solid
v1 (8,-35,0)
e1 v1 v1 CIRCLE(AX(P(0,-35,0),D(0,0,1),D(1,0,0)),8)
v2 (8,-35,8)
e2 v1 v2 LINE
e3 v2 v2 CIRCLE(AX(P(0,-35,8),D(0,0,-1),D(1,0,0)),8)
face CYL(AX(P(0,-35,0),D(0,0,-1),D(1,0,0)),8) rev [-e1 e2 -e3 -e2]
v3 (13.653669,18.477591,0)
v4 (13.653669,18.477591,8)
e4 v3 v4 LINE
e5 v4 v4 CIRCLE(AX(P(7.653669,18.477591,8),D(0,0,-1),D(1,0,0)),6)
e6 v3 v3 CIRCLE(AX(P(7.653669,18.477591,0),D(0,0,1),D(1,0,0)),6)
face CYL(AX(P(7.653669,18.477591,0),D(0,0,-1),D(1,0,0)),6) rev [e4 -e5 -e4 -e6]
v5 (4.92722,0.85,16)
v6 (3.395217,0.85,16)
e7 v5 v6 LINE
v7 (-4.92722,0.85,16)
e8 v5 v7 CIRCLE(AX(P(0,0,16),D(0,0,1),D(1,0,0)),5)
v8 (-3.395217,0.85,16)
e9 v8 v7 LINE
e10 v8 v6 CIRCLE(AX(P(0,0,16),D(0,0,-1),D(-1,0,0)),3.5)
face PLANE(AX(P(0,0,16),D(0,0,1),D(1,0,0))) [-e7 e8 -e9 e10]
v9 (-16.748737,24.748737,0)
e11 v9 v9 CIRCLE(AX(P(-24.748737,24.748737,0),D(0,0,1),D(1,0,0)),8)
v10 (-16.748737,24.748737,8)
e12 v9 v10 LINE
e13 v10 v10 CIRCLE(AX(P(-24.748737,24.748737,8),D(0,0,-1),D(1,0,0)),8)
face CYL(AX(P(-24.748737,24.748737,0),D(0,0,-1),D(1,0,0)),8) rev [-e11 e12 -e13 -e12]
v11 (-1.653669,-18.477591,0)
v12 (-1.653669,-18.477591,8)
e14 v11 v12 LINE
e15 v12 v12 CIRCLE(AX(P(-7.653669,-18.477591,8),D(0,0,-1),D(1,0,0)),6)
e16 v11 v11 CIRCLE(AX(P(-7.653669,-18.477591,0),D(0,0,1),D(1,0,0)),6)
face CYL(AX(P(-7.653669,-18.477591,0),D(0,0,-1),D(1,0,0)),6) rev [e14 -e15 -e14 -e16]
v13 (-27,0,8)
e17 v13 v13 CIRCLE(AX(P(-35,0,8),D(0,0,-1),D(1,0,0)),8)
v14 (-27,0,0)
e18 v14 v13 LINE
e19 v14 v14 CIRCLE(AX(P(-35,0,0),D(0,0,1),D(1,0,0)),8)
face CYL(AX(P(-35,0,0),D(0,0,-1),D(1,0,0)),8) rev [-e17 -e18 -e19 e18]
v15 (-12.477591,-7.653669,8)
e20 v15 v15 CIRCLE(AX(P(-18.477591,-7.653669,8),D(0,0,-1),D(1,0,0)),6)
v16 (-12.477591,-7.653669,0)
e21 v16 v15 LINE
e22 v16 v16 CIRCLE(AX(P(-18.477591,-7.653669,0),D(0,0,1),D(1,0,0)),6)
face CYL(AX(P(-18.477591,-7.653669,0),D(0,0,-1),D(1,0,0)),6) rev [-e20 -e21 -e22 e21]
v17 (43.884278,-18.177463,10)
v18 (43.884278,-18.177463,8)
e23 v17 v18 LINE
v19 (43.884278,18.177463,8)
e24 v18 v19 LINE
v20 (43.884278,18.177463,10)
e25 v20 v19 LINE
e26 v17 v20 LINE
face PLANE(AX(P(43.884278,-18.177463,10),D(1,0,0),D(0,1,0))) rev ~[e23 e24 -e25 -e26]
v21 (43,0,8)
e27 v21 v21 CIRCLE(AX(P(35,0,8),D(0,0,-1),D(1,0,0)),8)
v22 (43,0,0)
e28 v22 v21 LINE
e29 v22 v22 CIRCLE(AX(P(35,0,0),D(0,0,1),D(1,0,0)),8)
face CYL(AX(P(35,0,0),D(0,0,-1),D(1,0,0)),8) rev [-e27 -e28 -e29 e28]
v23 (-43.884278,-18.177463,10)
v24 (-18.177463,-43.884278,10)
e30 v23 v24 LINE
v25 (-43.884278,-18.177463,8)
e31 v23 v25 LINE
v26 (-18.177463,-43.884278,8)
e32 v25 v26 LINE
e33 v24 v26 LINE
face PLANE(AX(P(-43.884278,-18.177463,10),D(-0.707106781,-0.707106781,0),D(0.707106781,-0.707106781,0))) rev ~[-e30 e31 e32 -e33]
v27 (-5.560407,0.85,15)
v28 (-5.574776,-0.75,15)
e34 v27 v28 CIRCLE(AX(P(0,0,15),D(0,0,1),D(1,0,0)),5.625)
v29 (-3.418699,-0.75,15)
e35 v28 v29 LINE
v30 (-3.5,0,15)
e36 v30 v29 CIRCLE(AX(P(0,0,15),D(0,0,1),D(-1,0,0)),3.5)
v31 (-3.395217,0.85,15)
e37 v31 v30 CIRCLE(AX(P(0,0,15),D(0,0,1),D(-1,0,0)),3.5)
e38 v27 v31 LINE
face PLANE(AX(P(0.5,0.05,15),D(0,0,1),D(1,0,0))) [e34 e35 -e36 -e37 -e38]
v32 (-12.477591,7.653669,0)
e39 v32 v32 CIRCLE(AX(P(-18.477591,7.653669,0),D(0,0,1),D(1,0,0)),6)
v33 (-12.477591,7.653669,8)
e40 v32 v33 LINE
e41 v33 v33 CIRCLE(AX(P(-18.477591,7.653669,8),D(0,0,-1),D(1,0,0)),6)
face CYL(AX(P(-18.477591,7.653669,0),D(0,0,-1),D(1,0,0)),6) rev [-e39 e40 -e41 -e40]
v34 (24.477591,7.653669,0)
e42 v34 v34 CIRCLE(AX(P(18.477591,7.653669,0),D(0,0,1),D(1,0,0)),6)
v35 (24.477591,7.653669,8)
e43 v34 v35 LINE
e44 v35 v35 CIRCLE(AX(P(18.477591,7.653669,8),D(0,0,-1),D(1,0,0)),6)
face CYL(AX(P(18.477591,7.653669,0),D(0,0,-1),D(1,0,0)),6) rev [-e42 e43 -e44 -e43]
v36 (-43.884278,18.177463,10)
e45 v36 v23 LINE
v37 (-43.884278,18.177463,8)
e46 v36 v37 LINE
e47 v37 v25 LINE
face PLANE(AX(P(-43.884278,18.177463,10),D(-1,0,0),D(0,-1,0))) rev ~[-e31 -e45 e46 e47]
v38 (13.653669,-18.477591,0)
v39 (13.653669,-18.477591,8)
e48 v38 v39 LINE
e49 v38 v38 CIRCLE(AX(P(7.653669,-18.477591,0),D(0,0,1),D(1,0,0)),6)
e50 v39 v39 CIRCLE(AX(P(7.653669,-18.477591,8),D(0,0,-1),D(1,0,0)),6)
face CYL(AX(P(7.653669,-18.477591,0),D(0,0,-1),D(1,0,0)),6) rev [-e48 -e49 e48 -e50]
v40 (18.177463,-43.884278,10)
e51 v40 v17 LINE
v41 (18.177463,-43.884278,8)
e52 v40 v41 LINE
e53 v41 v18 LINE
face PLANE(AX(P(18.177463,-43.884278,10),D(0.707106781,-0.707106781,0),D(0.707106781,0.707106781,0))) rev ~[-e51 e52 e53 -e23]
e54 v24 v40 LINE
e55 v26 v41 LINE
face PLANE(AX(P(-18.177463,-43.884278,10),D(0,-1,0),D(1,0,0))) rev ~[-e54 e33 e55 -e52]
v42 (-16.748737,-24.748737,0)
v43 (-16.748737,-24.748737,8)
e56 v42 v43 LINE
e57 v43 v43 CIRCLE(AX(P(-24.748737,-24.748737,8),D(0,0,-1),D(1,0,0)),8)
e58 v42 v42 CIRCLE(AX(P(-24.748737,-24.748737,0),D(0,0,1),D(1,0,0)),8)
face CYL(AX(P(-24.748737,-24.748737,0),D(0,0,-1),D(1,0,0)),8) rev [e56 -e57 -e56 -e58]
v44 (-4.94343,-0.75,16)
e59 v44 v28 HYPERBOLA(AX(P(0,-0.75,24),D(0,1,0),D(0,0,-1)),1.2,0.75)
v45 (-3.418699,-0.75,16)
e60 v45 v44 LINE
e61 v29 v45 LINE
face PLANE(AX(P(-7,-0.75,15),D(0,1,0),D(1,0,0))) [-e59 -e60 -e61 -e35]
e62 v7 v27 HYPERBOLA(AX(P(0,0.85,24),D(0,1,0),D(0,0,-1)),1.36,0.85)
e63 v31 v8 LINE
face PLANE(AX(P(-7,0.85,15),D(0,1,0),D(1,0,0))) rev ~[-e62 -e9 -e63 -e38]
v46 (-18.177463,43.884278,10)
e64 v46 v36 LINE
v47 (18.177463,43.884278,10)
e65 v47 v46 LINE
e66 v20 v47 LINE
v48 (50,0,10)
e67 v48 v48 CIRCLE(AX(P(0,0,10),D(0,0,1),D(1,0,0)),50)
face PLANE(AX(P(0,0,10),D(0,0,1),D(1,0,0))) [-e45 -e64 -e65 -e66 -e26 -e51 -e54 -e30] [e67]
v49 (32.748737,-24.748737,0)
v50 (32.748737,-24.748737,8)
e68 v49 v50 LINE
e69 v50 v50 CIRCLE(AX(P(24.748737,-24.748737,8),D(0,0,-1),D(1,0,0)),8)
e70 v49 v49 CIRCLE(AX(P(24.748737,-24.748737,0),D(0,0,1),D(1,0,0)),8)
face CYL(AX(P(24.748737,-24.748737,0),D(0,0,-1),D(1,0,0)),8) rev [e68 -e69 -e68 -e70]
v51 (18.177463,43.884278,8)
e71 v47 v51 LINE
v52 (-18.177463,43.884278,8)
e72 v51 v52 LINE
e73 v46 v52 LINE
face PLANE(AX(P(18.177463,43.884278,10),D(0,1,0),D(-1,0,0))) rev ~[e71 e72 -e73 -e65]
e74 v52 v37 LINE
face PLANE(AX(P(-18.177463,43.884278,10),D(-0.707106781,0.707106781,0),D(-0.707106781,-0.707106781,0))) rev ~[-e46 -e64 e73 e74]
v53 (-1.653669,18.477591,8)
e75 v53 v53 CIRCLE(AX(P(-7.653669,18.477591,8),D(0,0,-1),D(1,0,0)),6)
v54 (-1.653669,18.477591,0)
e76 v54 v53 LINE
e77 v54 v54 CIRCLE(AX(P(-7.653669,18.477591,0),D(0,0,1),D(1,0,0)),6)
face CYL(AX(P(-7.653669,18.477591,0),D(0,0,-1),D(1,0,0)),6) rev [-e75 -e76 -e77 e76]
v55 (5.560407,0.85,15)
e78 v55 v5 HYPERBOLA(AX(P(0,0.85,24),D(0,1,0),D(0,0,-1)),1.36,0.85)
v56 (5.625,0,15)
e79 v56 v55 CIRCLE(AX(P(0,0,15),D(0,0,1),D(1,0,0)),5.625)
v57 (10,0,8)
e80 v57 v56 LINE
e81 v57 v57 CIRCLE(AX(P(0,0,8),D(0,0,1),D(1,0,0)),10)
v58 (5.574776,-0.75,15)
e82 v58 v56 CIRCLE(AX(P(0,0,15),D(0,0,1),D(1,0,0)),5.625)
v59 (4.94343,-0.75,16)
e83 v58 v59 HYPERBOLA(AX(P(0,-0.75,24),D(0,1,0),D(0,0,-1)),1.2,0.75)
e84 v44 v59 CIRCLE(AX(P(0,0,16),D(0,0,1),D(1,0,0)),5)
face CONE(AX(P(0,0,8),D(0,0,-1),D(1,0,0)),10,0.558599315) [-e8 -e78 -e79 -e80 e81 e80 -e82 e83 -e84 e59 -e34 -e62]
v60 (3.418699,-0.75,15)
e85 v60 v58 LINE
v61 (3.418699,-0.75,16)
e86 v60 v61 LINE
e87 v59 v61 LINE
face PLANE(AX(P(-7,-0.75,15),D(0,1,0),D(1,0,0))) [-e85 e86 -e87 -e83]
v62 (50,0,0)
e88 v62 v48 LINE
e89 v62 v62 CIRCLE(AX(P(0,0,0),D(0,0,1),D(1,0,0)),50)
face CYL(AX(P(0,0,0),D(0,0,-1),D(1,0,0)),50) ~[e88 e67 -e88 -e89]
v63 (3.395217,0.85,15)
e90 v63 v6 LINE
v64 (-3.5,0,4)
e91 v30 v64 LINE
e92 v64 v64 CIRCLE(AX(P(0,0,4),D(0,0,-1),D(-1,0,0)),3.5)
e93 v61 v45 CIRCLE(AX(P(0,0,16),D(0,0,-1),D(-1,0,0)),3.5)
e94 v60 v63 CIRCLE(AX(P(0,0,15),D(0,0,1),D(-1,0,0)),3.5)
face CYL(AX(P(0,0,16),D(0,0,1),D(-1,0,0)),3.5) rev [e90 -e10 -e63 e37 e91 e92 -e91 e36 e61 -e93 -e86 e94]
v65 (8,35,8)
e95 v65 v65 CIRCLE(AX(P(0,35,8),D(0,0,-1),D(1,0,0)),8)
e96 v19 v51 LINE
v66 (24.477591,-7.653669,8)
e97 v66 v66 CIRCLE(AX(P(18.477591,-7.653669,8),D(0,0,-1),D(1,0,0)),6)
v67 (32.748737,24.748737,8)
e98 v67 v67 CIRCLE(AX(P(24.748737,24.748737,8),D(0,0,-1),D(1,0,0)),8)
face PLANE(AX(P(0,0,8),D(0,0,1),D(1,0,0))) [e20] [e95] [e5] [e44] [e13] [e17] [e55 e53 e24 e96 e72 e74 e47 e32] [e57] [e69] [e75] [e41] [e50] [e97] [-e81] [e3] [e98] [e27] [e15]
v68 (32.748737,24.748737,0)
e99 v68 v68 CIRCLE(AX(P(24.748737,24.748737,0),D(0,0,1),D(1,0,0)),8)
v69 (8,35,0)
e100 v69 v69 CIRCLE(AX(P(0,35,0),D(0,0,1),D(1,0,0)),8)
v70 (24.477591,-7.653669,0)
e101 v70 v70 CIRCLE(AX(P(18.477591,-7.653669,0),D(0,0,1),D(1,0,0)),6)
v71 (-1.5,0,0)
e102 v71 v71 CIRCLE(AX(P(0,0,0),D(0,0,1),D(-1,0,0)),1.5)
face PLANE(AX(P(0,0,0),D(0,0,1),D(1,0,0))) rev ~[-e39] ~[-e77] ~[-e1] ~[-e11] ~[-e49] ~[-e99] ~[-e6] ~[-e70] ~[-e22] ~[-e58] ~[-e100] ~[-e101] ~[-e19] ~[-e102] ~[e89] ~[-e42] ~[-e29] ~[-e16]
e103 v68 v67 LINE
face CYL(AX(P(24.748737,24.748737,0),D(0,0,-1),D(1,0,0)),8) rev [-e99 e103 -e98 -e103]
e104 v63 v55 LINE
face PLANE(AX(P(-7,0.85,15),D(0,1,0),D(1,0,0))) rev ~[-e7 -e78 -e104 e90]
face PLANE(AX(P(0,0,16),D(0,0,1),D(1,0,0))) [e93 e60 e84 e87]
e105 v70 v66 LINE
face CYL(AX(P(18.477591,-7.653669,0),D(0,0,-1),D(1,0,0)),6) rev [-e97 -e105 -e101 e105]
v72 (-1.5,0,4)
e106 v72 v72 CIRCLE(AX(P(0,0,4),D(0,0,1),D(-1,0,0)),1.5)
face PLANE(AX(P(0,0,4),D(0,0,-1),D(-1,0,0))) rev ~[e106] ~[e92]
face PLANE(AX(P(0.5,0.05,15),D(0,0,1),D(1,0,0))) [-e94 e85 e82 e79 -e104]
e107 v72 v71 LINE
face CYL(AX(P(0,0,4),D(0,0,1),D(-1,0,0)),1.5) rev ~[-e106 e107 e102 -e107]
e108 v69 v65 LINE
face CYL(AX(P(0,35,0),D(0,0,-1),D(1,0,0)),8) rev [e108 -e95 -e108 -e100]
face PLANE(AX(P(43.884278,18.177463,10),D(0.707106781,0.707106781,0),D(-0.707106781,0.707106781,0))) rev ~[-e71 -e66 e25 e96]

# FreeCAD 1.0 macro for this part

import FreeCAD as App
import Part
import Sketcher

V = App.Vector

doc = App.newDocument("Part")
body = doc.addObject("PartDesign::Body", "Body")

sketch1 = body.newObject("Sketcher::SketchObject", "Sketch")
sketch1.AttachmentSupport = (doc.getObject("XY_Plane"), [""])
sketch1.MapMode = "FlatFace"
sketch1.addGeometry(Part.Circle(V(0, 0, 0), V(0, 0, 1), 50), False)
sketch1.addGeometry(Part.Circle(V(-25, -25, 0), V(0, 0, 1), 8), False)
sketch1.addGeometry(Part.Circle(V(-8, -18, 0), V(0, 0, 1), 6), False)
sketch1.addGeometry(Part.Circle(V(-18, -8, 0), V(0, 0, 1), 6), False)
sketch1.addGeometry(Part.Circle(V(0, -35, 0), V(0, 0, 1), 8), False)
sketch1.addGeometry(Part.Circle(V(25, -25, 0), V(0, 0, 1), 8), False)
sketch1.addGeometry(Part.Circle(V(8, -18, 0), V(0, 0, 1), 6), False)
sketch1.addGeometry(Part.Circle(V(18, -8, 0), V(0, 0, 1), 6), False)
sketch1.addGeometry(Part.Circle(V(-35, 0, 0), V(0, 0, 1), 8), False)
sketch1.addGeometry(Part.Circle(V(-18, 8, 0), V(0, 0, 1), 6), False)
sketch1.addGeometry(Part.Circle(V(-8, 18, 0), V(0, 0, 1), 6), False)
sketch1.addGeometry(Part.Circle(V(-25, 25, 0), V(0, 0, 1), 8), False)
sketch1.addGeometry(Part.Circle(V(18, 8, 0), V(0, 0, 1), 6), False)
sketch1.addGeometry(Part.Circle(V(8, 18, 0), V(0, 0, 1), 6), False)
sketch1.addGeometry(Part.Circle(V(35, 0, 0), V(0, 0, 1), 8), False)
sketch1.addGeometry(Part.Circle(V(0, 35, 0), V(0, 0, 1), 8), False)
sketch1.addGeometry(Part.Circle(V(25, 25, 0), V(0, 0, 1), 8), False)
sketch1.addConstraint(Sketcher.Constraint("Coincident", 0, 3, -1, 1))
sketch1.addConstraint(Sketcher.Constraint("Equal", 2, 3))
sketch1.addConstraint(Sketcher.Constraint("Equal", 1, 4))
sketch1.addConstraint(Sketcher.Constraint("Equal", 4, 5))
sketch1.addConstraint(Sketcher.Constraint("Equal", 3, 6))
sketch1.addConstraint(Sketcher.Constraint("Equal", 6, 7))
sketch1.addConstraint(Sketcher.Constraint("Equal", 5, 8))
sketch1.addConstraint(Sketcher.Constraint("Equal", 7, 9))
sketch1.addConstraint(Sketcher.Constraint("Equal", 9, 10))
sketch1.addConstraint(Sketcher.Constraint("Equal", 8, 11))
sketch1.addConstraint(Sketcher.Constraint("Equal", 10, 12))
sketch1.addConstraint(Sketcher.Constraint("Equal", 12, 13))
sketch1.addConstraint(Sketcher.Constraint("Equal", 11, 14))
sketch1.addConstraint(Sketcher.Constraint("Equal", 14, 15))
sketch1.addConstraint(Sketcher.Constraint("Equal", 15, 16))
sketch1.addConstraint(Sketcher.Constraint("Symmetric", 7, 3, 9, 3, -1, 1))
sketch1.addConstraint(Sketcher.Constraint("Symmetric", 6, 3, 10, 3, -1, 1))
sketch1.addConstraint(Sketcher.Constraint("Symmetric", 5, 3, 11, 3, -1, 1))
sketch1.addConstraint(Sketcher.Constraint("Symmetric", 3, 3, 12, 3, -1, 1))
sketch1.addConstraint(Sketcher.Constraint("Symmetric", 2, 3, 13, 3, -1, 1))
sketch1.addConstraint(Sketcher.Constraint("Symmetric", 8, 3, 14, 3, -1, 1))
sketch1.addConstraint(Sketcher.Constraint("Symmetric", 4, 3, 15, 3, -1, 1))
sketch1.addConstraint(Sketcher.Constraint("Symmetric", 1, 3, 16, 3, -1, 1))
sketch1.addConstraint(Sketcher.Constraint("Symmetric", 1, 3, 5, 3, -2))
sketch1.addConstraint(Sketcher.Constraint("Symmetric", 2, 3, 6, 3, -2))
sketch1.addConstraint(Sketcher.Constraint("Symmetric", 3, 3, 7, 3, -2))
sketch1.addConstraint(Sketcher.Constraint("PointOnObject", 4, 3, -2))
sketch1.addConstraint(Sketcher.Constraint("PointOnObject", 8, 3, -1))
sketch1.addConstraint(Sketcher.Constraint("Diameter", 0, 100.0))
sketch1.addConstraint(Sketcher.Constraint("Diameter", 1, 16.0))
sketch1.addConstraint(Sketcher.Constraint("Diameter", 2, 12.0))
sketch1.addConstraint(Sketcher.Constraint("DistanceY", 4, 3, -1, 1, 35.0))
sketch1.addConstraint(Sketcher.Constraint("DistanceX", 8, 3, -1, 1, 35.0))
sketch1.addConstraint(Sketcher.Constraint("DistanceX", 2, 3, -1, 1, 7.653669))
sketch1.addConstraint(Sketcher.Constraint("DistanceY", 2, 3, -1, 1, 18.477591))
sketch1.addConstraint(Sketcher.Constraint("DistanceX", 3, 3, -1, 1, 18.477591))
sketch1.addConstraint(Sketcher.Constraint("DistanceY", 3, 3, -1, 1, 7.653669))
sketch1.addConstraint(Sketcher.Constraint("DistanceX", 1, 3, -1, 1, 24.748737))
sketch1.addConstraint(Sketcher.Constraint("DistanceY", 1, 3, -1, 1, 24.748737))
pad1 = body.newObject("PartDesign::Pad", "Pad")
pad1.Profile = sketch1
pad1.Length = 10

sketch2 = body.newObject("Sketcher::SketchObject", "Sketch001")
sketch2.AttachmentSupport = (doc.getObject("XY_Plane"), [""])
sketch2.MapMode = "FlatFace"
sketch2.AttachmentOffset = App.Placement(V(0, 0, 10), App.Rotation())
sketch2.addGeometry(Part.LineSegment(V(44, 18, 0), V(18, 44, 0)), False)
sketch2.addGeometry(Part.LineSegment(V(18, 44, 0), V(-18, 44, 0)), False)
sketch2.addGeometry(Part.LineSegment(V(-18, 44, 0), V(-44, 18, 0)), False)
sketch2.addGeometry(Part.LineSegment(V(-44, 18, 0), V(-44, -18, 0)), False)
sketch2.addGeometry(Part.LineSegment(V(-44, -18, 0), V(-18, -44, 0)), False)
sketch2.addGeometry(Part.LineSegment(V(-18, -44, 0), V(18, -44, 0)), False)
sketch2.addGeometry(Part.LineSegment(V(18, -44, 0), V(44, -18, 0)), False)
sketch2.addGeometry(Part.LineSegment(V(44, -18, 0), V(44, 18, 0)), False)
sketch2.addConstraint(Sketcher.Constraint("Coincident", 0, 2, 1, 1))
sketch2.addConstraint(Sketcher.Constraint("Coincident", 1, 2, 2, 1))
sketch2.addConstraint(Sketcher.Constraint("Coincident", 2, 2, 3, 1))
sketch2.addConstraint(Sketcher.Constraint("Coincident", 3, 2, 4, 1))
sketch2.addConstraint(Sketcher.Constraint("Coincident", 4, 2, 5, 1))
sketch2.addConstraint(Sketcher.Constraint("Coincident", 5, 2, 6, 1))
sketch2.addConstraint(Sketcher.Constraint("Coincident", 6, 2, 7, 1))
sketch2.addConstraint(Sketcher.Constraint("Coincident", 7, 2, 0, 1))
sketch2.addConstraint(Sketcher.Constraint("Horizontal", 1))
sketch2.addConstraint(Sketcher.Constraint("Vertical", 3))
sketch2.addConstraint(Sketcher.Constraint("Horizontal", 5))
sketch2.addConstraint(Sketcher.Constraint("Vertical", 7))
sketch2.addConstraint(Sketcher.Constraint("Symmetric", 0, 2, 4, 2, -1, 1))
sketch2.addConstraint(Sketcher.Constraint("Symmetric", 2, 2, 6, 2, -1, 1))
sketch2.addConstraint(Sketcher.Constraint("Perpendicular", 0, 2))
sketch2.addConstraint(Sketcher.Constraint("Perpendicular", 2, 4))
sketch2.addConstraint(Sketcher.Constraint("Perpendicular", 4, 6))
sketch2.addConstraint(Sketcher.Constraint("Horizontal", 3, 2, 6, 2))
sketch2.addConstraint(Sketcher.Constraint("Vertical", 1, 2, 4, 2))
sketch2.addConstraint(Sketcher.Constraint("Equal", 5, 3))
sketch2.addConstraint(Sketcher.Constraint("DistanceX", 1, 2, 1, 1, 36.354926))
sketch2.addConstraint(Sketcher.Constraint("DistanceY", -1, 1, 0, 2, 43.884278))
pocket1 = body.newObject("PartDesign::Pocket", "Pocket")
pocket1.Profile = sketch2
pocket1.Length = 2

sketch3 = body.newObject("Sketcher::SketchObject", "Sketch002")
sketch3.AttachmentSupport = (doc.getObject("XZ_Plane"), [""])
sketch3.MapMode = "FlatFace"
sketch3.addGeometry(Part.LineSegment(V(0, 8, 0), V(10, 8, 0)), False)
sketch3.addGeometry(Part.LineSegment(V(10, 8, 0), V(5, 16, 0)), False)
sketch3.addGeometry(Part.LineSegment(V(5, 16, 0), V(0, 16, 0)), False)
sketch3.addGeometry(Part.LineSegment(V(0, 16, 0), V(0, 8, 0)), False)
sketch3.addConstraint(Sketcher.Constraint("Coincident", 0, 2, 1, 1))
sketch3.addConstraint(Sketcher.Constraint("Coincident", 1, 2, 2, 1))
sketch3.addConstraint(Sketcher.Constraint("Coincident", 2, 2, 3, 1))
sketch3.addConstraint(Sketcher.Constraint("Coincident", 3, 2, 0, 1))
sketch3.addConstraint(Sketcher.Constraint("Horizontal", 0))
sketch3.addConstraint(Sketcher.Constraint("Horizontal", 2))
sketch3.addConstraint(Sketcher.Constraint("Vertical", 3))
sketch3.addConstraint(Sketcher.Constraint("PointOnObject", 2, 2, -2))
sketch3.addConstraint(Sketcher.Constraint("DistanceX", 0, 1, 0, 2, 10.0))
sketch3.addConstraint(Sketcher.Constraint("DistanceX", 2, 2, 2, 1, 5.0))
sketch3.addConstraint(Sketcher.Constraint("DistanceY", 3, 2, 3, 1, 8.0))
sketch3.addConstraint(Sketcher.Constraint("DistanceY", -1, 1, 0, 2, 8.0))
revolution = body.newObject("PartDesign::Revolution", "Revolution")
revolution.Profile = sketch3
revolution.ReferenceAxis = (sketch3, ["V_Axis"])
revolution.Angle = 360

sketch4 = body.newObject("Sketcher::SketchObject", "Sketch003")
sketch4.AttachmentSupport = (doc.getObject("XY_Plane"), [""])
sketch4.MapMode = "FlatFace"
sketch4.AttachmentOffset = App.Placement(V(0, 0, 16), App.Rotation())
sketch4.addGeometry(Part.Circle(V(0, 0, 0), V(0, 0, 1), 3.5), False)
sketch4.addConstraint(Sketcher.Constraint("Coincident", 0, 3, -1, 1))
sketch4.addConstraint(Sketcher.Constraint("Diameter", 0, 7.0))
pocket2 = body.newObject("PartDesign::Pocket", "Pocket001")
pocket2.Profile = sketch4
pocket2.Length = 12

sketch5 = body.newObject("Sketcher::SketchObject", "Sketch004")
sketch5.AttachmentSupport = (doc.getObject("XY_Plane"), [""])
sketch5.MapMode = "FlatFace"
sketch5.AttachmentOffset = App.Placement(V(0, 0, 4), App.Rotation())
sketch5.addGeometry(Part.Circle(V(0, 0, 0), V(0, 0, 1), 1.5), False)
sketch5.addConstraint(Sketcher.Constraint("Coincident", 0, 3, -1, 1))
sketch5.addConstraint(Sketcher.Constraint("Diameter", 0, 3.0))
pocket3 = body.newObject("PartDesign::Pocket", "Pocket002")
pocket3.Profile = sketch5
pocket3.Length = 10

sketch6 = body.newObject("Sketcher::SketchObject", "Sketch005")
sketch6.AttachmentSupport = (doc.getObject("XY_Plane"), [""])
sketch6.MapMode = "FlatFace"
sketch6.AttachmentOffset = App.Placement(V(0, 0, 15), App.Rotation())
sketch6.addGeometry(Part.LineSegment(V(-7, 0.8, 0), V(-7, -0.8, 0)), False)
sketch6.addGeometry(Part.LineSegment(V(-7, -0.8, 0), V(8, -0.8, 0)), False)
sketch6.addGeometry(Part.LineSegment(V(8, -0.8, 0), V(8, 0.8, 0)), False)
sketch6.addGeometry(Part.LineSegment(V(8, 0.8, 0), V(-7, 0.8, 0)), False)
sketch6.addConstraint(Sketcher.Constraint("Coincident", 0, 2, 1, 1))
sketch6.addConstraint(Sketcher.Constraint("Coincident", 1, 2, 2, 1))
sketch6.addConstraint(Sketcher.Constraint("Coincident", 2, 2, 3, 1))
sketch6.addConstraint(Sketcher.Constraint("Coincident", 3, 2, 0, 1))
sketch6.addConstraint(Sketcher.Constraint("Vertical", 0))
sketch6.addConstraint(Sketcher.Constraint("Horizontal", 1))
sketch6.addConstraint(Sketcher.Constraint("Vertical", 2))
sketch6.addConstraint(Sketcher.Constraint("Horizontal", 3))
sketch6.addConstraint(Sketcher.Constraint("DistanceX", 1, 1, 1, 2, 15.0))
sketch6.addConstraint(Sketcher.Constraint("DistanceY", 0, 2, 0, 1, 1.6))
sketch6.addConstraint(Sketcher.Constraint("DistanceX", 0, 2, -1, 1, 7.0))
sketch6.addConstraint(Sketcher.Constraint("DistanceY", 0, 2, -1, 1, 0.75))
pocket4 = body.newObject("PartDesign::Pocket", "Pocket003")
pocket4.Profile = sketch6
pocket4.Length = 4
pocket4.Reversed = True

doc.recompute()
